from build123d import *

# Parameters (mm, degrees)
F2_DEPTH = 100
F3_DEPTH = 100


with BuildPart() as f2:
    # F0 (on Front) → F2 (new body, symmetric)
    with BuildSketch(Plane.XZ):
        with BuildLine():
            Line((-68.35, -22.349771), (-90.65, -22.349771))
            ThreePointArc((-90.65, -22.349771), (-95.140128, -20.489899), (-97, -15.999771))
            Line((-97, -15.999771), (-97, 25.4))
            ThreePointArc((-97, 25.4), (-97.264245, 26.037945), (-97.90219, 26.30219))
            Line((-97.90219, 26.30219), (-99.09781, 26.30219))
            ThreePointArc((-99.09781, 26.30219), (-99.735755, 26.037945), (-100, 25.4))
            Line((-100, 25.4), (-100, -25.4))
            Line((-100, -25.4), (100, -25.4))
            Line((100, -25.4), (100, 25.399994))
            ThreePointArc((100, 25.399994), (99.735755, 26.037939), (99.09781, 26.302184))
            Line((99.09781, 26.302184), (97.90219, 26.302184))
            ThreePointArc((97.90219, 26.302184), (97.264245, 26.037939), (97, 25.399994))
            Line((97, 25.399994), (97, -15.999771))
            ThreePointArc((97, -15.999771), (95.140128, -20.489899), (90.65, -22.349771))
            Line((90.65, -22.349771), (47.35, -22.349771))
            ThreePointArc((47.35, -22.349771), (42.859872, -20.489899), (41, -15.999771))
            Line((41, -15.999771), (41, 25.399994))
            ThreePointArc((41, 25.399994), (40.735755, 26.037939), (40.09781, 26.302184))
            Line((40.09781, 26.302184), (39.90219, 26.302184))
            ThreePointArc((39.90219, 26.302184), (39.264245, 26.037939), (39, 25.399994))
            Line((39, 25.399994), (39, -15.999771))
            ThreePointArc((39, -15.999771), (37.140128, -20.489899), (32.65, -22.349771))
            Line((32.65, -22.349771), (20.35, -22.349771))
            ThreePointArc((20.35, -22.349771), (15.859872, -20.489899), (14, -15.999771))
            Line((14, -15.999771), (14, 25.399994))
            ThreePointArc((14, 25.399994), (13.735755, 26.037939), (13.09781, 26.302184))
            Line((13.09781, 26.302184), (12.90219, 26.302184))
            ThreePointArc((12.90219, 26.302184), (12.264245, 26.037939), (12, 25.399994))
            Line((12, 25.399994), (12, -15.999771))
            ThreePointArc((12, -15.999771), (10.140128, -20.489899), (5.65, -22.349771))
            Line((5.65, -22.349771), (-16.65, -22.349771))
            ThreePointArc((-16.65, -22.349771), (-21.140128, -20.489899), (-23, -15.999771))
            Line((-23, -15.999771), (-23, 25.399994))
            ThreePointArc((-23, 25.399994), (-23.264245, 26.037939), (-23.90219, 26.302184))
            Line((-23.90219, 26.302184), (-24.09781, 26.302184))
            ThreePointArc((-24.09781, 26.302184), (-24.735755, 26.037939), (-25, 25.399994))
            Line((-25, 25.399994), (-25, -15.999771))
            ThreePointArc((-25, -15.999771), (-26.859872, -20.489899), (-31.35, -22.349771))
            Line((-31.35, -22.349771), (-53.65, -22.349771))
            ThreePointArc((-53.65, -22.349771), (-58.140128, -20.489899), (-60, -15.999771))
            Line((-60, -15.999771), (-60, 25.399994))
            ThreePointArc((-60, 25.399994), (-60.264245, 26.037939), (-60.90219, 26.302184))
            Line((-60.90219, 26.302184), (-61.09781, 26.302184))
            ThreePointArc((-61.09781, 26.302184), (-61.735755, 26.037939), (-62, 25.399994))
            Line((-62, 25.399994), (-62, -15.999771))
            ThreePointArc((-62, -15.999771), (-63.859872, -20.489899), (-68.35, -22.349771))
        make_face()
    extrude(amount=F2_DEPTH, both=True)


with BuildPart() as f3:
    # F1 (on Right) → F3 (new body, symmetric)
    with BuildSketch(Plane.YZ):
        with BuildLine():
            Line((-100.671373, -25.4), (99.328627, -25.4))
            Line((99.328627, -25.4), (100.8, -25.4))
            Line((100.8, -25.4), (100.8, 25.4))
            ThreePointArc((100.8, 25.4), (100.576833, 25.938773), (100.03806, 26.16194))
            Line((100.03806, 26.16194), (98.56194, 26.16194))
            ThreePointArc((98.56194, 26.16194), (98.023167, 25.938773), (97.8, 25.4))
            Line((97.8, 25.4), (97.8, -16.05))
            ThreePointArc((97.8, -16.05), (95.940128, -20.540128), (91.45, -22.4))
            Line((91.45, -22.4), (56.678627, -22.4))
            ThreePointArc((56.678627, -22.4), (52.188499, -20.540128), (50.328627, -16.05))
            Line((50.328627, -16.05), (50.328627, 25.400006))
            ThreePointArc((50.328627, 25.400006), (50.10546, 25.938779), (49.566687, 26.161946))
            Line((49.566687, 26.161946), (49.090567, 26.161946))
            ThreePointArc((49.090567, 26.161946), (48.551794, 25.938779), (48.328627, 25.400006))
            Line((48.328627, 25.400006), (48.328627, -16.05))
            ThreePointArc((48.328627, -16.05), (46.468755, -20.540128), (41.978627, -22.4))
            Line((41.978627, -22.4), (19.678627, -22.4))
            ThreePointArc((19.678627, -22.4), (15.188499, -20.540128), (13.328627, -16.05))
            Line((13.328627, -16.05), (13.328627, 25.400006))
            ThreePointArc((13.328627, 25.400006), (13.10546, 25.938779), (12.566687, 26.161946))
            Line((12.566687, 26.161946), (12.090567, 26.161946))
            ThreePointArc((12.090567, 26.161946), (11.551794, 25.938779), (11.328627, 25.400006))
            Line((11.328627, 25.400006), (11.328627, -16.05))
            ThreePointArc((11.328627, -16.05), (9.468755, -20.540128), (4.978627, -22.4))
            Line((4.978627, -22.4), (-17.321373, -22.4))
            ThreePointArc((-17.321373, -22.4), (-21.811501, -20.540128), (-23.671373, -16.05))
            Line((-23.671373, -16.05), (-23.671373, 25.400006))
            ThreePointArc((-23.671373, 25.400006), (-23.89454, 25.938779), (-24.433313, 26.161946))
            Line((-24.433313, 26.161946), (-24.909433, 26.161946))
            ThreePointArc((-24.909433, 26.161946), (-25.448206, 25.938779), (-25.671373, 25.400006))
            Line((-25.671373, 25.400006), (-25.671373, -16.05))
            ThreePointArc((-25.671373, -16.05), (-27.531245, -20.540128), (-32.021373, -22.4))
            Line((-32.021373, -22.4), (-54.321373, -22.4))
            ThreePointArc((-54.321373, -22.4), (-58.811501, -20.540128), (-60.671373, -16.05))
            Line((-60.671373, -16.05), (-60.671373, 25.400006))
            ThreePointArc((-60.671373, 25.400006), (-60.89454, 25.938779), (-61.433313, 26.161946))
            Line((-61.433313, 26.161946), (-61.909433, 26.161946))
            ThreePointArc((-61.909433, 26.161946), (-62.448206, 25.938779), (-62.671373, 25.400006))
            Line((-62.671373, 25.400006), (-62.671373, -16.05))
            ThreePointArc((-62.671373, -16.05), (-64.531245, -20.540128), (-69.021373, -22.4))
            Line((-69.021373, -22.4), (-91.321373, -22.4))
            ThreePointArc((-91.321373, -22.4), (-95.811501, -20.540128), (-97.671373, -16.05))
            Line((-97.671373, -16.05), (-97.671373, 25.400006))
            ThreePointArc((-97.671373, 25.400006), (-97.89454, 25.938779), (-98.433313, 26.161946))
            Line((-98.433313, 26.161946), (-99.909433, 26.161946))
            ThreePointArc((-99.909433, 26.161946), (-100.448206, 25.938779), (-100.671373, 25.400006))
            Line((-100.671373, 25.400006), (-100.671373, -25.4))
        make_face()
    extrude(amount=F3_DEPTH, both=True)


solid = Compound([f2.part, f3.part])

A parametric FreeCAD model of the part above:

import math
import FreeCAD as App
import Part
import Sketcher
Q = App.Units.Quantity

doc = App.newDocument("Part")
body = doc.addObject("PartDesign::Body", "Body")

# Sketch on XZ plane
sketch1 = body.newObject("Sketcher::SketchObject", "Sketch")
sketch1.AttachmentSupport = (doc.getObject("XZ_Plane"), [""])
sketch1.MapMode = "FlatFace"
sketch1.addGeometry(Part.LineSegment(App.Vector(-68.35, -22.349771, 0), App.Vector(-90.65, -22.349771, 0)), False)
sketch1.addGeometry(Part.ArcOfCircle(Part.Circle(App.Vector(-90.65, -15.999771, 0), App.Vector(0, 0, 1), 6.35), math.radians(-179.999998), math.radians(-90.000002)), False)
sketch1.addGeometry(Part.LineSegment(App.Vector(-97, -15.999771, 0), App.Vector(-97, 25.4, 0)), False)
sketch1.addGeometry(Part.ArcOfCircle(Part.Circle(App.Vector(-97.902189, 25.400001, 0), App.Vector(0, 0, 1), 0.902189), math.radians(-0.000072), math.radians(90.000072)), False)
sketch1.addGeometry(Part.LineSegment(App.Vector(-97.90219, 26.30219, 0), App.Vector(-99.09781, 26.30219, 0)), False)
sketch1.addGeometry(Part.ArcOfCircle(Part.Circle(App.Vector(-99.097811, 25.400001, 0), App.Vector(0, 0, 1), 0.902189), math.radians(89.999928), math.radians(180.000072)), False)
sketch1.addGeometry(Part.LineSegment(App.Vector(-100, 25.4, 0), App.Vector(-100, -25.4, 0)), False)
sketch1.addGeometry(Part.LineSegment(App.Vector(-100, -25.4, 0), App.Vector(100, -25.4, 0)), False)
sketch1.addGeometry(Part.LineSegment(App.Vector(100, -25.4, 0), App.Vector(100, 25.399994, 0)), False)
sketch1.addGeometry(Part.ArcOfCircle(Part.Circle(App.Vector(99.097811, 25.399995, 0), App.Vector(0, 0, 1), 0.902189), math.radians(-0.000072), math.radians(90.000072)), False)
sketch1.addGeometry(Part.LineSegment(App.Vector(99.09781, 26.302184, 0), App.Vector(97.90219, 26.302184, 0)), False)
sketch1.addGeometry(Part.ArcOfCircle(Part.Circle(App.Vector(97.902189, 25.399995, 0), App.Vector(0, 0, 1), 0.902189), math.radians(89.999928), math.radians(180.000072)), False)
sketch1.addGeometry(Part.LineSegment(App.Vector(97, 25.399994, 0), App.Vector(97, -15.999771, 0)), False)
sketch1.addGeometry(Part.ArcOfCircle(Part.Circle(App.Vector(90.65, -15.999771, 0), App.Vector(0, 0, 1), 6.35), math.radians(-89.999998), math.radians(-0.000002)), False)
sketch1.addGeometry(Part.LineSegment(App.Vector(90.65, -22.349771, 0), App.Vector(47.35, -22.349771, 0)), False)
sketch1.addGeometry(Part.ArcOfCircle(Part.Circle(App.Vector(47.35, -15.999771, 0), App.Vector(0, 0, 1), 6.35), math.radians(-179.999998), math.radians(-90.000002)), False)
sketch1.addGeometry(Part.LineSegment(App.Vector(41, -15.999771, 0), App.Vector(41, 25.399994, 0)), False)
sketch1.addGeometry(Part.ArcOfCircle(Part.Circle(App.Vector(40.097811, 25.399995, 0), App.Vector(0, 0, 1), 0.902189), math.radians(-0.000072), math.radians(90.000072)), False)
sketch1.addGeometry(Part.LineSegment(App.Vector(40.09781, 26.302184, 0), App.Vector(39.90219, 26.302184, 0)), False)
sketch1.addGeometry(Part.ArcOfCircle(Part.Circle(App.Vector(39.902189, 25.399995, 0), App.Vector(0, 0, 1), 0.902189), math.radians(89.999928), math.radians(180.000072)), False)
sketch1.addGeometry(Part.LineSegment(App.Vector(39, 25.399994, 0), App.Vector(39, -15.999771, 0)), False)
sketch1.addGeometry(Part.ArcOfCircle(Part.Circle(App.Vector(32.65, -15.999771, 0), App.Vector(0, 0, 1), 6.35), math.radians(-89.999998), math.radians(-0.000002)), False)
sketch1.addGeometry(Part.LineSegment(App.Vector(32.65, -22.349771, 0), App.Vector(20.35, -22.349771, 0)), False)
sketch1.addGeometry(Part.ArcOfCircle(Part.Circle(App.Vector(20.35, -15.999771, 0), App.Vector(0, 0, 1), 6.35), math.radians(-179.999998), math.radians(-90.000002)), False)
sketch1.addGeometry(Part.LineSegment(App.Vector(14, -15.999771, 0), App.Vector(14, 25.399994, 0)), False)
sketch1.addGeometry(Part.ArcOfCircle(Part.Circle(App.Vector(13.097811, 25.399995, 0), App.Vector(0, 0, 1), 0.902189), math.radians(-0.000072), math.radians(90.000072)), False)
sketch1.addGeometry(Part.LineSegment(App.Vector(13.09781, 26.302184, 0), App.Vector(12.90219, 26.302184, 0)), False)
sketch1.addGeometry(Part.ArcOfCircle(Part.Circle(App.Vector(12.902189, 25.399995, 0), App.Vector(0, 0, 1), 0.902189), math.radians(89.999928), math.radians(180.000072)), False)
sketch1.addGeometry(Part.LineSegment(App.Vector(12, 25.399994, 0), App.Vector(12, -15.999771, 0)), False)
sketch1.addGeometry(Part.ArcOfCircle(Part.Circle(App.Vector(5.65, -15.999771, 0), App.Vector(0, 0, 1), 6.35), math.radians(-89.999998), math.radians(-0.000002)), False)
sketch1.addGeometry(Part.LineSegment(App.Vector(5.65, -22.349771, 0), App.Vector(-16.65, -22.349771, 0)), False)
sketch1.addGeometry(Part.ArcOfCircle(Part.Circle(App.Vector(-16.65, -15.999771, 0), App.Vector(0, 0, 1), 6.35), math.radians(-179.999998), math.radians(-90.000002)), False)
sketch1.addGeometry(Part.LineSegment(App.Vector(-23, -15.999771, 0), App.Vector(-23, 25.399994, 0)), False)
sketch1.addGeometry(Part.ArcOfCircle(Part.Circle(App.Vector(-23.902189, 25.399995, 0), App.Vector(0, 0, 1), 0.902189), math.radians(-0.000072), math.radians(90.000072)), False)
sketch1.addGeometry(Part.LineSegment(App.Vector(-23.90219, 26.302184, 0), App.Vector(-24.09781, 26.302184, 0)), False)
sketch1.addGeometry(Part.ArcOfCircle(Part.Circle(App.Vector(-24.097811, 25.399995, 0), App.Vector(0, 0, 1), 0.902189), math.radians(89.999928), math.radians(180.000072)), False)
sketch1.addGeometry(Part.LineSegment(App.Vector(-25, 25.399994, 0), App.Vector(-25, -15.999771, 0)), False)
sketch1.addGeometry(Part.ArcOfCircle(Part.Circle(App.Vector(-31.35, -15.999771, 0), App.Vector(0, 0, 1), 6.35), math.radians(-89.999998), math.radians(-0.000002)), False)
sketch1.addGeometry(Part.LineSegment(App.Vector(-31.35, -22.349771, 0), App.Vector(-53.65, -22.349771, 0)), False)
sketch1.addGeometry(Part.ArcOfCircle(Part.Circle(App.Vector(-53.65, -15.999771, 0), App.Vector(0, 0, 1), 6.35), math.radians(-179.999998), math.radians(-90.000002)), False)
sketch1.addGeometry(Part.LineSegment(App.Vector(-60, -15.999771, 0), App.Vector(-60, 25.399994, 0)), False)
sketch1.addGeometry(Part.ArcOfCircle(Part.Circle(App.Vector(-60.902189, 25.399995, 0), App.Vector(0, 0, 1), 0.902189), math.radians(-0.000072), math.radians(90.000072)), False)
sketch1.addGeometry(Part.LineSegment(App.Vector(-60.90219, 26.302184, 0), App.Vector(-61.09781, 26.302184, 0)), False)
sketch1.addGeometry(Part.ArcOfCircle(Part.Circle(App.Vector(-61.097811, 25.399995, 0), App.Vector(0, 0, 1), 0.902189), math.radians(89.999928), math.radians(180.000072)), False)
sketch1.addGeometry(Part.LineSegment(App.Vector(-62, 25.399994, 0), App.Vector(-62, -15.999771, 0)), False)
sketch1.addGeometry(Part.ArcOfCircle(Part.Circle(App.Vector(-68.35, -15.999771, 0), App.Vector(0, 0, 1), 6.35), math.radians(-89.999998), math.radians(-0.000002)), False)
sketch1.addConstraint(Sketcher.Constraint("Tangent", 0, 2, 1, 2))
sketch1.addConstraint(Sketcher.Constraint("Tangent", 1, 1, 2, 1))
sketch1.addConstraint(Sketcher.Constraint("Tangent", 2, 2, 3, 1))
sketch1.addConstraint(Sketcher.Constraint("Tangent", 3, 2, 4, 1))
sketch1.addConstraint(Sketcher.Constraint("Tangent", 4, 2, 5, 1))
sketch1.addConstraint(Sketcher.Constraint("Tangent", 5, 2, 6, 1))
sketch1.addConstraint(Sketcher.Constraint("Coincident", 6, 2, 7, 1))
sketch1.addConstraint(Sketcher.Constraint("Coincident", 7, 2, 8, 1))
sketch1.addConstraint(Sketcher.Constraint("Tangent", 8, 2, 9, 1))
sketch1.addConstraint(Sketcher.Constraint("Tangent", 9, 2, 10, 1))
sketch1.addConstraint(Sketcher.Constraint("Tangent", 10, 2, 11, 1))
sketch1.addConstraint(Sketcher.Constraint("Tangent", 11, 2, 12, 1))
sketch1.addConstraint(Sketcher.Constraint("Tangent", 12, 2, 13, 2))
sketch1.addConstraint(Sketcher.Constraint("Tangent", 13, 1, 14, 1))
sketch1.addConstraint(Sketcher.Constraint("Tangent", 14, 2, 15, 2))
sketch1.addConstraint(Sketcher.Constraint("Tangent", 15, 1, 16, 1))
sketch1.addConstraint(Sketcher.Constraint("Tangent", 16, 2, 17, 1))
sketch1.addConstraint(Sketcher.Constraint("Tangent", 17, 2, 18, 1))
sketch1.addConstraint(Sketcher.Constraint("Tangent", 18, 2, 19, 1))
sketch1.addConstraint(Sketcher.Constraint("Tangent", 19, 2, 20, 1))
sketch1.addConstraint(Sketcher.Constraint("Tangent", 20, 2, 21, 2))
sketch1.addConstraint(Sketcher.Constraint("Tangent", 21, 1, 22, 1))
sketch1.addConstraint(Sketcher.Constraint("Tangent", 22, 2, 23, 2))
sketch1.addConstraint(Sketcher.Constraint("Tangent", 23, 1, 24, 1))
sketch1.addConstraint(Sketcher.Constraint("Tangent", 24, 2, 25, 1))
sketch1.addConstraint(Sketcher.Constraint("Tangent", 25, 2, 26, 1))
sketch1.addConstraint(Sketcher.Constraint("Tangent", 26, 2, 27, 1))
sketch1.addConstraint(Sketcher.Constraint("Tangent", 27, 2, 28, 1))
sketch1.addConstraint(Sketcher.Constraint("Tangent", 28, 2, 29, 2))
sketch1.addConstraint(Sketcher.Constraint("Tangent", 29, 1, 30, 1))
sketch1.addConstraint(Sketcher.Constraint("Tangent", 30, 2, 31, 2))
sketch1.addConstraint(Sketcher.Constraint("Tangent", 31, 1, 32, 1))
sketch1.addConstraint(Sketcher.Constraint("Tangent", 32, 2, 33, 1))
sketch1.addConstraint(Sketcher.Constraint("Tangent", 33, 2, 34, 1))
sketch1.addConstraint(Sketcher.Constraint("Tangent", 34, 2, 35, 1))
sketch1.addConstraint(Sketcher.Constraint("Tangent", 35, 2, 36, 1))
sketch1.addConstraint(Sketcher.Constraint("Tangent", 36, 2, 37, 2))
sketch1.addConstraint(Sketcher.Constraint("Tangent", 37, 1, 38, 1))
sketch1.addConstraint(Sketcher.Constraint("Tangent", 38, 2, 39, 2))
sketch1.addConstraint(Sketcher.Constraint("Tangent", 39, 1, 40, 1))
sketch1.addConstraint(Sketcher.Constraint("Tangent", 40, 2, 41, 1))
sketch1.addConstraint(Sketcher.Constraint("Tangent", 41, 2, 42, 1))
sketch1.addConstraint(Sketcher.Constraint("Tangent", 42, 2, 43, 1))
sketch1.addConstraint(Sketcher.Constraint("Tangent", 43, 2, 44, 1))
sketch1.addConstraint(Sketcher.Constraint("Tangent", 44, 2, 45, 2))
sketch1.addConstraint(Sketcher.Constraint("Tangent", 45, 1, 0, 1))
sketch1.addConstraint(Sketcher.Constraint("Horizontal", 0))
sketch1.addConstraint(Sketcher.Constraint("Vertical", 2))
sketch1.addConstraint(Sketcher.Constraint("Horizontal", 4))
sketch1.addConstraint(Sketcher.Constraint("Vertical", 6))
sketch1.addConstraint(Sketcher.Constraint("Horizontal", 7))
sketch1.addConstraint(Sketcher.Constraint("Vertical", 8))
sketch1.addConstraint(Sketcher.Constraint("Horizontal", 10))
sketch1.addConstraint(Sketcher.Constraint("Vertical", 12))
sketch1.addConstraint(Sketcher.Constraint("Horizontal", 14))
sketch1.addConstraint(Sketcher.Constraint("Vertical", 16))
sketch1.addConstraint(Sketcher.Constraint("Horizontal", 18))
sketch1.addConstraint(Sketcher.Constraint("Vertical", 20))
sketch1.addConstraint(Sketcher.Constraint("Horizontal", 22))
sketch1.addConstraint(Sketcher.Constraint("Vertical", 24))
sketch1.addConstraint(Sketcher.Constraint("Horizontal", 26))
sketch1.addConstraint(Sketcher.Constraint("Vertical", 28))
sketch1.addConstraint(Sketcher.Constraint("Horizontal", 30))
sketch1.addConstraint(Sketcher.Constraint("Vertical", 32))
sketch1.addConstraint(Sketcher.Constraint("Horizontal", 34))
sketch1.addConstraint(Sketcher.Constraint("Vertical", 36))
sketch1.addConstraint(Sketcher.Constraint("Horizontal", 38))
sketch1.addConstraint(Sketcher.Constraint("Vertical", 40))
sketch1.addConstraint(Sketcher.Constraint("Horizontal", 42))
sketch1.addConstraint(Sketcher.Constraint("Vertical", 44))
sketch1.addConstraint(Sketcher.Constraint("Equal", 3, 5))
sketch1.addConstraint(Sketcher.Constraint("Equal", 5, 9))
sketch1.addConstraint(Sketcher.Constraint("Equal", 9, 11))
sketch1.addConstraint(Sketcher.Constraint("Equal", 1, 13))
sketch1.addConstraint(Sketcher.Constraint("Equal", 13, 15))
sketch1.addConstraint(Sketcher.Constraint("Equal", 11, 17))
sketch1.addConstraint(Sketcher.Constraint("Equal", 17, 19))
sketch1.addConstraint(Sketcher.Constraint("Equal", 15, 21))
sketch1.addConstraint(Sketcher.Constraint("Equal", 21, 23))
sketch1.addConstraint(Sketcher.Constraint("Equal", 19, 25))
sketch1.addConstraint(Sketcher.Constraint("Equal", 25, 27))
sketch1.addConstraint(Sketcher.Constraint("Equal", 23, 29))
sketch1.addConstraint(Sketcher.Constraint("Equal", 29, 31))
sketch1.addConstraint(Sketcher.Constraint("Equal", 27, 33))
sketch1.addConstraint(Sketcher.Constraint("Equal", 33, 35))
sketch1.addConstraint(Sketcher.Constraint("Equal", 31, 37))
sketch1.addConstraint(Sketcher.Constraint("Equal", 37, 39))
sketch1.addConstraint(Sketcher.Constraint("Equal", 35, 41))
sketch1.addConstraint(Sketcher.Constraint("Equal", 41, 43))
sketch1.addConstraint(Sketcher.Constraint("Equal", 39, 45))
sketch1.addConstraint(Sketcher.Constraint("Symmetric", 5, 2, 7, 2, -1, 1))
sketch1.addConstraint(Sketcher.Constraint("Symmetric", 3, 3, 11, 3, -2))
sketch1.addConstraint(Sketcher.Constraint("Horizontal", 1, 3, 13, 3))
sketch1.addConstraint(Sketcher.Constraint("Horizontal", 11, 3, 17, 3))
sketch1.addConstraint(Sketcher.Constraint("Horizontal", 15, 3, 21, 3))
sketch1.addConstraint(Sketcher.Constraint("Horizontal", 19, 3, 25, 3))
sketch1.addConstraint(Sketcher.Constraint("Horizontal", 23, 3, 29, 3))
sketch1.addConstraint(Sketcher.Constraint("Horizontal", 27, 3, 33, 3))
sketch1.addConstraint(Sketcher.Constraint("Horizontal", 31, 3, 37, 3))
sketch1.addConstraint(Sketcher.Constraint("Horizontal", 35, 3, 41, 3))
sketch1.addConstraint(Sketcher.Constraint("Equal", 18, 26))
sketch1.addConstraint(Sketcher.Constraint("Equal", 0, 30))
sketch1.addConstraint(Sketcher.Constraint("Equal", 26, 34))
sketch1.addConstraint(Sketcher.Constraint("Equal", 30, 38))
sketch1.addConstraint(Sketcher.Constraint("Equal", 34, 42))
sketch1.addConstraint(Sketcher.Constraint("DistanceX", 7, 1, 7, 2, Q("200 mm")))
sketch1.addConstraint(Sketcher.Constraint("Radius", 1, Q("6.35 mm")))
sketch1.addConstraint(Sketcher.Constraint("DistanceX", 0, 2, 0, 1, Q("22.3 mm")))
sketch1.addConstraint(Sketcher.Constraint("DistanceX", 14, 2, 14, 1, Q("43.3 mm")))
sketch1.addConstraint(Sketcher.Constraint("DistanceX", 22, 2, 22, 1, Q("12.3 mm")))
sketch1.addConstraint(Sketcher.Constraint("DistanceY", 6, 2, 6, 1, Q("50.8 mm")))
sketch1.addConstraint(Sketcher.Constraint("DistanceX", 1, 1, -1, 1, Q("97 mm")))
sketch1.addConstraint(Sketcher.Constraint("Radius", 3, Q("0.902189 mm")))
sketch1.addConstraint(Sketcher.Constraint("DistanceY", 2, 1, 2, 2, Q("41.399771 mm")))
pad1 = body.newObject("PartDesign::Pad", "Pad")
pad1.Profile = sketch1
pad1.Length = 200
pad1.Midplane = True
body2 = doc.addObject("PartDesign::Body", "Body001")

# Sketch on YZ plane
sketch2 = body2.newObject("Sketcher::SketchObject", "Sketch001")
sketch2.AttachmentSupport = (doc.getObject("YZ_Plane001"), [""])
sketch2.MapMode = "FlatFace"
sketch2.addGeometry(Part.LineSegment(App.Vector(-100.671373, -25.4, 0), App.Vector(100.8, -25.4, 0)), False)
sketch2.addGeometry(Part.LineSegment(App.Vector(100.8, -25.4, 0), App.Vector(100.8, 25.4, 0)), False)
sketch2.addGeometry(Part.ArcOfCircle(Part.Circle(App.Vector(100.03806, 25.4, 0), App.Vector(0, 0, 1), 0.76194), math.radians(-0.000015), math.radians(90.000015)), False)
sketch2.addGeometry(Part.LineSegment(App.Vector(100.03806, 26.16194, 0), App.Vector(98.56194, 26.16194, 0)), False)
sketch2.addGeometry(Part.ArcOfCircle(Part.Circle(App.Vector(98.56194, 25.4, 0), App.Vector(0, 0, 1), 0.76194), math.radians(89.999985), math.radians(180.000015)), False)
sketch2.addGeometry(Part.LineSegment(App.Vector(97.8, 25.4, 0), App.Vector(97.8, -16.05, 0)), False)
sketch2.addGeometry(Part.ArcOfCircle(Part.Circle(App.Vector(91.45, -16.05, 0), App.Vector(0, 0, 1), 6.35), math.radians(-89.999998), math.radians(-0.000002)), False)
sketch2.addGeometry(Part.LineSegment(App.Vector(91.45, -22.4, 0), App.Vector(56.678627, -22.4, 0)), False)
sketch2.addGeometry(Part.ArcOfCircle(Part.Circle(App.Vector(56.678627, -16.05, 0), App.Vector(0, 0, 1), 6.35), math.radians(-179.999998), math.radians(-90.000002)), False)
sketch2.addGeometry(Part.LineSegment(App.Vector(50.328627, -16.05, 0), App.Vector(50.328627, 25.400006, 0)), False)
sketch2.addGeometry(Part.ArcOfCircle(Part.Circle(App.Vector(49.566687, 25.400006, 0), App.Vector(0, 0, 1), 0.76194), math.radians(-0.000015), math.radians(90.000015)), False)
sketch2.addGeometry(Part.LineSegment(App.Vector(49.566687, 26.161946, 0), App.Vector(49.090567, 26.161946, 0)), False)
sketch2.addGeometry(Part.ArcOfCircle(Part.Circle(App.Vector(49.090567, 25.400006, 0), App.Vector(0, 0, 1), 0.76194), math.radians(89.999985), math.radians(180.000015)), False)
sketch2.addGeometry(Part.LineSegment(App.Vector(48.328627, 25.400006, 0), App.Vector(48.328627, -16.05, 0)), False)
sketch2.addGeometry(Part.ArcOfCircle(Part.Circle(App.Vector(41.978627, -16.05, 0), App.Vector(0, 0, 1), 6.35), math.radians(-89.999998), math.radians(-0.000002)), False)
sketch2.addGeometry(Part.LineSegment(App.Vector(41.978627, -22.4, 0), App.Vector(19.678627, -22.4, 0)), False)
sketch2.addGeometry(Part.ArcOfCircle(Part.Circle(App.Vector(19.678627, -16.05, 0), App.Vector(0, 0, 1), 6.35), math.radians(-179.999998), math.radians(-90.000002)), False)
sketch2.addGeometry(Part.LineSegment(App.Vector(13.328627, -16.05, 0), App.Vector(13.328627, 25.400006, 0)), False)
sketch2.addGeometry(Part.ArcOfCircle(Part.Circle(App.Vector(12.566687, 25.400006, 0), App.Vector(0, 0, 1), 0.76194), math.radians(-0.000015), math.radians(90.000015)), False)
sketch2.addGeometry(Part.LineSegment(App.Vector(12.566687, 26.161946, 0), App.Vector(12.090567, 26.161946, 0)), False)
sketch2.addGeometry(Part.ArcOfCircle(Part.Circle(App.Vector(12.090567, 25.400006, 0), App.Vector(0, 0, 1), 0.76194), math.radians(89.999985), math.radians(180.000015)), False)
sketch2.addGeometry(Part.LineSegment(App.Vector(11.328627, 25.400006, 0), App.Vector(11.328627, -16.05, 0)), False)
sketch2.addGeometry(Part.ArcOfCircle(Part.Circle(App.Vector(4.978627, -16.05, 0), App.Vector(0, 0, 1), 6.35), math.radians(-89.999998), math.radians(-0.000002)), False)
sketch2.addGeometry(Part.LineSegment(App.Vector(4.978627, -22.4, 0), App.Vector(-17.321373, -22.4, 0)), False)
sketch2.addGeometry(Part.ArcOfCircle(Part.Circle(App.Vector(-17.321373, -16.05, 0), App.Vector(0, 0, 1), 6.35), math.radians(-179.999998), math.radians(-90.000002)), False)
sketch2.addGeometry(Part.LineSegment(App.Vector(-23.671373, -16.05, 0), App.Vector(-23.671373, 25.400006, 0)), False)
sketch2.addGeometry(Part.ArcOfCircle(Part.Circle(App.Vector(-24.433313, 25.400006, 0), App.Vector(0, 0, 1), 0.76194), math.radians(-0.000015), math.radians(90.000015)), False)
sketch2.addGeometry(Part.LineSegment(App.Vector(-24.433313, 26.161946, 0), App.Vector(-24.909433, 26.161946, 0)), False)
sketch2.addGeometry(Part.ArcOfCircle(Part.Circle(App.Vector(-24.909433, 25.400006, 0), App.Vector(0, 0, 1), 0.76194), math.radians(89.999985), math.radians(180.000015)), False)
sketch2.addGeometry(Part.LineSegment(App.Vector(-25.671373, 25.400006, 0), App.Vector(-25.671373, -16.05, 0)), False)
sketch2.addGeometry(Part.ArcOfCircle(Part.Circle(App.Vector(-32.021373, -16.05, 0), App.Vector(0, 0, 1), 6.35), math.radians(-89.999998), math.radians(-0.000002)), False)
sketch2.addGeometry(Part.LineSegment(App.Vector(-32.021373, -22.4, 0), App.Vector(-54.321373, -22.4, 0)), False)
sketch2.addGeometry(Part.ArcOfCircle(Part.Circle(App.Vector(-54.321373, -16.05, 0), App.Vector(0, 0, 1), 6.35), math.radians(-179.999998), math.radians(-90.000002)), False)
sketch2.addGeometry(Part.LineSegment(App.Vector(-60.671373, -16.05, 0), App.Vector(-60.671373, 25.400006, 0)), False)
sketch2.addGeometry(Part.ArcOfCircle(Part.Circle(App.Vector(-61.433313, 25.400006, 0), App.Vector(0, 0, 1), 0.76194), math.radians(-0.000015), math.radians(90.000015)), False)
sketch2.addGeometry(Part.LineSegment(App.Vector(-61.433313, 26.161946, 0), App.Vector(-61.909433, 26.161946, 0)), False)
sketch2.addGeometry(Part.ArcOfCircle(Part.Circle(App.Vector(-61.909433, 25.400006, 0), App.Vector(0, 0, 1), 0.76194), math.radians(89.999985), math.radians(180.000015)), False)
sketch2.addGeometry(Part.LineSegment(App.Vector(-62.671373, 25.400006, 0), App.Vector(-62.671373, -16.05, 0)), False)
sketch2.addGeometry(Part.ArcOfCircle(Part.Circle(App.Vector(-69.021373, -16.05, 0), App.Vector(0, 0, 1), 6.35), math.radians(-89.999998), math.radians(-0.000002)), False)
sketch2.addGeometry(Part.LineSegment(App.Vector(-69.021373, -22.4, 0), App.Vector(-91.321373, -22.4, 0)), False)
sketch2.addGeometry(Part.ArcOfCircle(Part.Circle(App.Vector(-91.321373, -16.05, 0), App.Vector(0, 0, 1), 6.35), math.radians(-179.999998), math.radians(-90.000002)), False)
sketch2.addGeometry(Part.LineSegment(App.Vector(-97.671373, -16.05, 0), App.Vector(-97.671373, 25.400006, 0)), False)
sketch2.addGeometry(Part.ArcOfCircle(Part.Circle(App.Vector(-98.433313, 25.400006, 0), App.Vector(0, 0, 1), 0.76194), math.radians(-0.000015), math.radians(90.000015)), False)
sketch2.addGeometry(Part.LineSegment(App.Vector(-98.433313, 26.161946, 0), App.Vector(-99.909433, 26.161946, 0)), False)
sketch2.addGeometry(Part.ArcOfCircle(Part.Circle(App.Vector(-99.909433, 25.400006, 0), App.Vector(0, 0, 1), 0.76194), math.radians(89.999985), math.radians(180.000015)), False)
sketch2.addGeometry(Part.LineSegment(App.Vector(-100.671373, 25.400006, 0), App.Vector(-100.671373, -25.4, 0)), False)
sketch2.addConstraint(Sketcher.Constraint("Coincident", 0, 2, 1, 1))
sketch2.addConstraint(Sketcher.Constraint("Tangent", 1, 2, 2, 1))
sketch2.addConstraint(Sketcher.Constraint("Tangent", 2, 2, 3, 1))
sketch2.addConstraint(Sketcher.Constraint("Tangent", 3, 2, 4, 1))
sketch2.addConstraint(Sketcher.Constraint("Tangent", 4, 2, 5, 1))
sketch2.addConstraint(Sketcher.Constraint("Tangent", 5, 2, 6, 2))
sketch2.addConstraint(Sketcher.Constraint("Tangent", 6, 1, 7, 1))
sketch2.addConstraint(Sketcher.Constraint("Tangent", 7, 2, 8, 2))
sketch2.addConstraint(Sketcher.Constraint("Tangent", 8, 1, 9, 1))
sketch2.addConstraint(Sketcher.Constraint("Tangent", 9, 2, 10, 1))
sketch2.addConstraint(Sketcher.Constraint("Tangent", 10, 2, 11, 1))
sketch2.addConstraint(Sketcher.Constraint("Tangent", 11, 2, 12, 1))
sketch2.addConstraint(Sketcher.Constraint("Tangent", 12, 2, 13, 1))
sketch2.addConstraint(Sketcher.Constraint("Tangent", 13, 2, 14, 2))
sketch2.addConstraint(Sketcher.Constraint("Tangent", 14, 1, 15, 1))
sketch2.addConstraint(Sketcher.Constraint("Tangent", 15, 2, 16, 2))
sketch2.addConstraint(Sketcher.Constraint("Tangent", 16, 1, 17, 1))
sketch2.addConstraint(Sketcher.Constraint("Tangent", 17, 2, 18, 1))
sketch2.addConstraint(Sketcher.Constraint("Tangent", 18, 2, 19, 1))
sketch2.addConstraint(Sketcher.Constraint("Tangent", 19, 2, 20, 1))
sketch2.addConstraint(Sketcher.Constraint("Tangent", 20, 2, 21, 1))
sketch2.addConstraint(Sketcher.Constraint("Tangent", 21, 2, 22, 2))
sketch2.addConstraint(Sketcher.Constraint("Tangent", 22, 1, 23, 1))
sketch2.addConstraint(Sketcher.Constraint("Tangent", 23, 2, 24, 2))
sketch2.addConstraint(Sketcher.Constraint("Tangent", 24, 1, 25, 1))
sketch2.addConstraint(Sketcher.Constraint("Tangent", 25, 2, 26, 1))
sketch2.addConstraint(Sketcher.Constraint("Tangent", 26, 2, 27, 1))
sketch2.addConstraint(Sketcher.Constraint("Tangent", 27, 2, 28, 1))
sketch2.addConstraint(Sketcher.Constraint("Tangent", 28, 2, 29, 1))
sketch2.addConstraint(Sketcher.Constraint("Tangent", 29, 2, 30, 2))
sketch2.addConstraint(Sketcher.Constraint("Tangent", 30, 1, 31, 1))
sketch2.addConstraint(Sketcher.Constraint("Tangent", 31, 2, 32, 2))
sketch2.addConstraint(Sketcher.Constraint("Tangent", 32, 1, 33, 1))
sketch2.addConstraint(Sketcher.Constraint("Tangent", 33, 2, 34, 1))
sketch2.addConstraint(Sketcher.Constraint("Tangent", 34, 2, 35, 1))
sketch2.addConstraint(Sketcher.Constraint("Tangent", 35, 2, 36, 1))
sketch2.addConstraint(Sketcher.Constraint("Tangent", 36, 2, 37, 1))
sketch2.addConstraint(Sketcher.Constraint("Tangent", 37, 2, 38, 2))
sketch2.addConstraint(Sketcher.Constraint("Tangent", 38, 1, 39, 1))
sketch2.addConstraint(Sketcher.Constraint("Tangent", 39, 2, 40, 2))
sketch2.addConstraint(Sketcher.Constraint("Tangent", 40, 1, 41, 1))
sketch2.addConstraint(Sketcher.Constraint("Tangent", 41, 2, 42, 1))
sketch2.addConstraint(Sketcher.Constraint("Tangent", 42, 2, 43, 1))
sketch2.addConstraint(Sketcher.Constraint("Tangent", 43, 2, 44, 1))
sketch2.addConstraint(Sketcher.Constraint("Tangent", 44, 2, 45, 1))
sketch2.addConstraint(Sketcher.Constraint("Coincident", 45, 2, 0, 1))
sketch2.addConstraint(Sketcher.Constraint("Horizontal", 0))
sketch2.addConstraint(Sketcher.Constraint("Vertical", 1))
sketch2.addConstraint(Sketcher.Constraint("Horizontal", 3))
sketch2.addConstraint(Sketcher.Constraint("Vertical", 5))
sketch2.addConstraint(Sketcher.Constraint("Horizontal", 7))
sketch2.addConstraint(Sketcher.Constraint("Vertical", 9))
sketch2.addConstraint(Sketcher.Constraint("Horizontal", 11))
sketch2.addConstraint(Sketcher.Constraint("Vertical", 13))
sketch2.addConstraint(Sketcher.Constraint("Horizontal", 15))
sketch2.addConstraint(Sketcher.Constraint("Vertical", 17))
sketch2.addConstraint(Sketcher.Constraint("Horizontal", 19))
sketch2.addConstraint(Sketcher.Constraint("Vertical", 21))
sketch2.addConstraint(Sketcher.Constraint("Horizontal", 23))
sketch2.addConstraint(Sketcher.Constraint("Vertical", 25))
sketch2.addConstraint(Sketcher.Constraint("Horizontal", 27))
sketch2.addConstraint(Sketcher.Constraint("Vertical", 29))
sketch2.addConstraint(Sketcher.Constraint("Horizontal", 31))
sketch2.addConstraint(Sketcher.Constraint("Vertical", 33))
sketch2.addConstraint(Sketcher.Constraint("Horizontal", 35))
sketch2.addConstraint(Sketcher.Constraint("Vertical", 37))
sketch2.addConstraint(Sketcher.Constraint("Horizontal", 39))
sketch2.addConstraint(Sketcher.Constraint("Vertical", 41))
sketch2.addConstraint(Sketcher.Constraint("Horizontal", 43))
sketch2.addConstraint(Sketcher.Constraint("Vertical", 45))
sketch2.addConstraint(Sketcher.Constraint("Equal", 2, 4))
sketch2.addConstraint(Sketcher.Constraint("Equal", 6, 8))
sketch2.addConstraint(Sketcher.Constraint("Equal", 4, 10))
sketch2.addConstraint(Sketcher.Constraint("Equal", 10, 12))
sketch2.addConstraint(Sketcher.Constraint("Equal", 8, 14))
sketch2.addConstraint(Sketcher.Constraint("Equal", 14, 16))
sketch2.addConstraint(Sketcher.Constraint("Equal", 12, 18))
sketch2.addConstraint(Sketcher.Constraint("Equal", 18, 20))
sketch2.addConstraint(Sketcher.Constraint("Equal", 16, 22))
sketch2.addConstraint(Sketcher.Constraint("Equal", 22, 24))
sketch2.addConstraint(Sketcher.Constraint("Equal", 20, 26))
sketch2.addConstraint(Sketcher.Constraint("Equal", 26, 28))
sketch2.addConstraint(Sketcher.Constraint("Equal", 24, 30))
sketch2.addConstraint(Sketcher.Constraint("Equal", 30, 32))
sketch2.addConstraint(Sketcher.Constraint("Equal", 28, 34))
sketch2.addConstraint(Sketcher.Constraint("Equal", 34, 36))
sketch2.addConstraint(Sketcher.Constraint("Equal", 32, 38))
sketch2.addConstraint(Sketcher.Constraint("Equal", 38, 40))
sketch2.addConstraint(Sketcher.Constraint("Equal", 36, 42))
sketch2.addConstraint(Sketcher.Constraint("Equal", 42, 44))
sketch2.addConstraint(Sketcher.Constraint("Horizontal", 8, 3, 14, 3))
sketch2.addConstraint(Sketcher.Constraint("Horizontal", 12, 3, 18, 3))
sketch2.addConstraint(Sketcher.Constraint("Horizontal", 16, 3, 22, 3))
sketch2.addConstraint(Sketcher.Constraint("Horizontal", 20, 3, 26, 3))
sketch2.addConstraint(Sketcher.Constraint("Horizontal", 24, 3, 30, 3))
sketch2.addConstraint(Sketcher.Constraint("Horizontal", 28, 3, 34, 3))
sketch2.addConstraint(Sketcher.Constraint("Horizontal", 32, 3, 38, 3))
sketch2.addConstraint(Sketcher.Constraint("Horizontal", 36, 3, 42, 3))
sketch2.addConstraint(Sketcher.Constraint("Equal", 11, 19))
sketch2.addConstraint(Sketcher.Constraint("Equal", 15, 23))
sketch2.addConstraint(Sketcher.Constraint("Equal", 19, 27))
sketch2.addConstraint(Sketcher.Constraint("Equal", 23, 31))
sketch2.addConstraint(Sketcher.Constraint("Equal", 27, 35))
sketch2.addConstraint(Sketcher.Constraint("Equal", 31, 39))
sketch2.addConstraint(Sketcher.Constraint("Equal", 3, 43))
sketch2.addConstraint(Sketcher.Constraint("Radius", 6, Q("6.35 mm")))
sketch2.addConstraint(Sketcher.Constraint("DistanceX", 15, 2, 15, 1, Q("22.3 mm")))
sketch2.addConstraint(Sketcher.Constraint("DistanceY", 1, 1, 1, 2, Q("50.8 mm")))
sketch2.addConstraint(Sketcher.Constraint("DistanceY", 5, 2, 5, 1, Q("41.45 mm")))
sketch2.addConstraint(Sketcher.Constraint("DistanceY", -1, 1, 2, 3, Q("25.4 mm")))
sketch2.addConstraint(Sketcher.Constraint("DistanceX", -1, 1, 0, 2, Q("100.8 mm")))
sketch2.addConstraint(Sketcher.Constraint("DistanceX", -1, 1, 4, 2, Q("97.8 mm")))
sketch2.addConstraint(Sketcher.Constraint("Radius", 2, Q("0.76194 mm")))
sketch2.addConstraint(Sketcher.Constraint("DistanceX", 11, 2, 11, 1, Q("0.47612 mm")))
sketch2.addConstraint(Sketcher.Constraint("DistanceX", 0, 1, 0, 2, Q("201.471373 mm")))
sketch2.addConstraint(Sketcher.Constraint("DistanceY", 9, 1, 9, 2, Q("41.450006 mm")))
pad2 = body2.newObject("PartDesign::Pad", "Pad001")
pad2.Profile = sketch2
pad2.Length = 200
pad2.Midplane = True

doc.recompute()
